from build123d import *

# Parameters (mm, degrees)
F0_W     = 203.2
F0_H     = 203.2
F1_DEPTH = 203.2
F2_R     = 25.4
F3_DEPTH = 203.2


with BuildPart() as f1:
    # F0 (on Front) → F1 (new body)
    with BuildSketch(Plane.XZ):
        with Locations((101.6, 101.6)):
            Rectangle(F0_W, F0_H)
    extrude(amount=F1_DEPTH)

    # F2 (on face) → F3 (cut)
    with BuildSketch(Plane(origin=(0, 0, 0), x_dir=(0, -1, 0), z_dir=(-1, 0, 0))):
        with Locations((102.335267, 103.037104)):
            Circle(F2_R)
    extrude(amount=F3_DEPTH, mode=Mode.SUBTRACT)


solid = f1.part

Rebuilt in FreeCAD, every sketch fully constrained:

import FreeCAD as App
import Part
import Sketcher

V = App.Vector
Q = App.Units.Quantity

doc = App.newDocument("Part")
body = doc.addObject("PartDesign::Body", "Body")

# Sketch on XZ plane
sketch1 = doc.addObject("Sketcher::SketchObject", "Sketch")
body.addObject(sketch1)
sketch1.AttachmentSupport = (doc.XZ_Plane, [""])
sketch1.MapMode = "FlatFace"
sketch1.addGeometry(Part.LineSegment(V(0, 203, 0), V(0, 0, 0)), False)
sketch1.addGeometry(Part.LineSegment(V(0, 0, 0), V(203, 0, 0)), False)
sketch1.addGeometry(Part.LineSegment(V(203, 0, 0), V(203, 203, 0)), False)
sketch1.addGeometry(Part.LineSegment(V(203, 203, 0), V(0, 203, 0)), False)
sketch1.addConstraint(Sketcher.Constraint("Coincident", 0, 2, 1, 1))
sketch1.addConstraint(Sketcher.Constraint("Coincident", 1, 2, 2, 1))
sketch1.addConstraint(Sketcher.Constraint("Coincident", 2, 2, 3, 1))
sketch1.addConstraint(Sketcher.Constraint("Coincident", 3, 2, 0, 1))
sketch1.addConstraint(Sketcher.Constraint("Vertical", 0))
sketch1.addConstraint(Sketcher.Constraint("Horizontal", 1))
sketch1.addConstraint(Sketcher.Constraint("Vertical", 2))
sketch1.addConstraint(Sketcher.Constraint("Horizontal", 3))
sketch1.addConstraint(Sketcher.Constraint("Coincident", 0, 2, -1, 1))
sketch1.addConstraint(Sketcher.Constraint("Equal", 3, 0))
sketch1.addConstraint(Sketcher.Constraint("DistanceX", 1, 1, 1, 2, Q("8 in")))
pad1 = doc.addObject("PartDesign::Pad", "Pad")
body.addObject(pad1)
pad1.Profile = sketch1
pad1.Length = Q("8 in")

# Sketch on YZ plane
sketch2 = doc.addObject("Sketcher::SketchObject", "Sketch001")
body.addObject(sketch2)
sketch2.AttachmentSupport = (doc.YZ_Plane, [""])
sketch2.MapMode = "FlatFace"
sketch2.addGeometry(Part.Circle(V(-102, 103, 0), V(0, 0, 1), 25), False)
sketch2.addConstraint(Sketcher.Constraint("Diameter", 0, Q("2 in")))
sketch2.addConstraint(Sketcher.Constraint("DistanceX", 0, 3, -1, 1, Q("102.335267 mm")))
sketch2.addConstraint(Sketcher.Constraint("DistanceY", -1, 1, 0, 3, Q("103.037104 mm")))
pocket1 = doc.addObject("PartDesign::Pocket", "Pocket")
body.addObject(pocket1)
pocket1.Profile = sketch2
pocket1.Length = Q("8 in")

doc.recompute()
